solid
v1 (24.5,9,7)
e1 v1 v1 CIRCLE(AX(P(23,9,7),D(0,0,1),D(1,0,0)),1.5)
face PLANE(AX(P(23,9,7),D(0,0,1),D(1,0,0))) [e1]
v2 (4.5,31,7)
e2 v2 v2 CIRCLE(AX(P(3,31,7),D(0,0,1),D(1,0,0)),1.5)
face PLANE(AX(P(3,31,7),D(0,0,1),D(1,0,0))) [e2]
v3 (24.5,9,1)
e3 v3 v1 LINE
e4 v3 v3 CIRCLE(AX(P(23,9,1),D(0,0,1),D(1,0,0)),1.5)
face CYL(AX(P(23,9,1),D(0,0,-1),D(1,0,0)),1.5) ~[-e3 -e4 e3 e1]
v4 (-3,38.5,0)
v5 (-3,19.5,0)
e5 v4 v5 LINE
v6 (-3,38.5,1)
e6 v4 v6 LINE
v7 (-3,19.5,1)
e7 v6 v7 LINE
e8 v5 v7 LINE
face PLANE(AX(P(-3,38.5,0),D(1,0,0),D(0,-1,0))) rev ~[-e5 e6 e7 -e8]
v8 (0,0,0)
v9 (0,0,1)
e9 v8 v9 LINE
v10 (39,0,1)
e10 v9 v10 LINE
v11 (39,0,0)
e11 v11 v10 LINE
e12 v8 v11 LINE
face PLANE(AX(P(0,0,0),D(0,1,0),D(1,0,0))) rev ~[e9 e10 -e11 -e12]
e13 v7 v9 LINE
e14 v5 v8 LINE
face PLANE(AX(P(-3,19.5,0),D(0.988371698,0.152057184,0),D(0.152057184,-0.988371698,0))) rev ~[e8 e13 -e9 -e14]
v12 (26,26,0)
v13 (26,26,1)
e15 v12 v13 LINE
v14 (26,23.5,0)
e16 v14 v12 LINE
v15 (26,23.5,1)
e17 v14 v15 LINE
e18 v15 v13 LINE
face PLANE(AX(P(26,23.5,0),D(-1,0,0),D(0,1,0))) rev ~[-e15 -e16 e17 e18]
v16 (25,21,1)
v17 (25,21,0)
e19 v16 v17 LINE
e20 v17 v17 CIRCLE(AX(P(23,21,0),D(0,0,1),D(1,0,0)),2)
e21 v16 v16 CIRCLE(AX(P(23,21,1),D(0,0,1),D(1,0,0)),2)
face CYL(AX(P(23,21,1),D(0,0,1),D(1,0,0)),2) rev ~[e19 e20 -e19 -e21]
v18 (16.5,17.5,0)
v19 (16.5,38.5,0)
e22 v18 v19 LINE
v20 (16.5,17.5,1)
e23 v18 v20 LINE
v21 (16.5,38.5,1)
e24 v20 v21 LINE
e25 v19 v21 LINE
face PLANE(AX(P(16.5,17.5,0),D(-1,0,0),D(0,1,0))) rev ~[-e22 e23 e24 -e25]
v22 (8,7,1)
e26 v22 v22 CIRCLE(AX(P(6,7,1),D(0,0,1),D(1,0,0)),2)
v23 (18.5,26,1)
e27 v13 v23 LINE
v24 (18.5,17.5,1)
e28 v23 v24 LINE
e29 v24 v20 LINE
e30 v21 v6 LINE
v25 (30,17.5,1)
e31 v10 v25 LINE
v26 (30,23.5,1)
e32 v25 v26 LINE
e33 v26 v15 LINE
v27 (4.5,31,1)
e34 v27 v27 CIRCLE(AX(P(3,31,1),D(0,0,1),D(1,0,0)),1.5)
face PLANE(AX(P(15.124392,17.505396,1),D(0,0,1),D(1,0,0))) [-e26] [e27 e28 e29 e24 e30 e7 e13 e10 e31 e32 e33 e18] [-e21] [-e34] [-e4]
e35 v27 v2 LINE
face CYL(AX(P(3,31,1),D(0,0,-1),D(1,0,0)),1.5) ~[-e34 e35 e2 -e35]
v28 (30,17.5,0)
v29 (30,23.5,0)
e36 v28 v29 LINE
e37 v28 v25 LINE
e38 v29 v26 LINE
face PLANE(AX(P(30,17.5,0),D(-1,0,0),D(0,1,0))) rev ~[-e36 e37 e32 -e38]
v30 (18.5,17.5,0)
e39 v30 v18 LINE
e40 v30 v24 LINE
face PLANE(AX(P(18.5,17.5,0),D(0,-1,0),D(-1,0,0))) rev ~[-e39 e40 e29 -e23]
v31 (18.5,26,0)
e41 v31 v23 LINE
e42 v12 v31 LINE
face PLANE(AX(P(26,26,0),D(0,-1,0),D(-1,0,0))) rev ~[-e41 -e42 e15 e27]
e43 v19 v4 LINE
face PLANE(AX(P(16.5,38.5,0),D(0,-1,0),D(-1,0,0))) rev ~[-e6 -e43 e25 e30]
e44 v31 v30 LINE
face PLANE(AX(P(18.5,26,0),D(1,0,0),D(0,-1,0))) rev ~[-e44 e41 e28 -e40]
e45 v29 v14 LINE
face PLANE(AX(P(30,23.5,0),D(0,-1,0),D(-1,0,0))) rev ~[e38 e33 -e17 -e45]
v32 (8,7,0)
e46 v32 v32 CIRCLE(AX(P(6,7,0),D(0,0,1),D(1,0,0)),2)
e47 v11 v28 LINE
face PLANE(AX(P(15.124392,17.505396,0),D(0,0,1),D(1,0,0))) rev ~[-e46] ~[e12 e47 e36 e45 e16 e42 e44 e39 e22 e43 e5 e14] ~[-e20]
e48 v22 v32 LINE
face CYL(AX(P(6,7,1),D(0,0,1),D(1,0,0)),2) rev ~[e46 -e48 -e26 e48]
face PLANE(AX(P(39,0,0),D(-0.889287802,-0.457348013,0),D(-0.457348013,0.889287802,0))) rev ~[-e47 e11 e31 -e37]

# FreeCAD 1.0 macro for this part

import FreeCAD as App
import Part
import Sketcher


def add_polygon(sketch, points):
    """Adds a closed chain of lines whose ends are joined by coincident constraints."""
    first, n = sketch.GeometryCount, len(points)
    for a, b in zip(points, points[1:] + points[:1]):
        sketch.addGeometry(Part.LineSegment(App.Vector(*a, 0), App.Vector(*b, 0)), False)
    for i in range(n):
        sketch.addConstraint(Sketcher.Constraint("Coincident", first + i, 2, first + (i + 1) % n, 1))

doc = App.newDocument("Part")
body = doc.addObject("PartDesign::Body", "Body")

# Sketch on XY plane
sketch1 = body.newObject("Sketcher::SketchObject", "Sketch")
sketch1.AttachmentSupport = (doc.getObject("XY_Plane"), [""])
sketch1.MapMode = "FlatFace"
add_polygon(sketch1, [(0, 0), (39, 0), (30, 17.5), (30, 23.5), (26, 23.5), (26, 26), (18.5, 26), (18.5, 17.5), (16.5, 17.5), (16.5, 38.5), (-3, 38.5), (-3, 19.5)])  # lines 0-11
sketch1.addConstraint(Sketcher.Constraint("Horizontal", 0))
sketch1.addConstraint(Sketcher.Constraint("Vertical", 2))
sketch1.addConstraint(Sketcher.Constraint("Horizontal", 3))
sketch1.addConstraint(Sketcher.Constraint("Vertical", 4))
sketch1.addConstraint(Sketcher.Constraint("Horizontal", 5))
sketch1.addConstraint(Sketcher.Constraint("Vertical", 6))
sketch1.addConstraint(Sketcher.Constraint("Horizontal", 7))
sketch1.addConstraint(Sketcher.Constraint("Vertical", 8))
sketch1.addConstraint(Sketcher.Constraint("Horizontal", 9))
sketch1.addConstraint(Sketcher.Constraint("Vertical", 10))
sketch1.addConstraint(Sketcher.Constraint("Coincident", 11, 2, -1, 1))
sketch1.addConstraint(Sketcher.Constraint("Horizontal", 1, 2, 6, 2))
sketch1.addConstraint(Sketcher.Constraint("DistanceX", 0, 1, 0, 2, 39.0))
sketch1.addConstraint(Sketcher.Constraint("DistanceX", 3, 2, 3, 1, 4.0))
sketch1.addConstraint(Sketcher.Constraint("DistanceX", 7, 2, 7, 1, 2.0))
sketch1.addConstraint(Sketcher.Constraint("DistanceY", 2, 1, 2, 2, 6.0))
sketch1.addConstraint(Sketcher.Constraint("DistanceY", 8, 1, 8, 2, 21.0))
sketch1.addConstraint(Sketcher.Constraint("DistanceY", 10, 2, 10, 1, 19.0))
sketch1.addConstraint(Sketcher.Constraint("DistanceX", 5, 2, 5, 1, 7.5))
sketch1.addConstraint(Sketcher.Constraint("DistanceX", 9, 2, 9, 1, 19.5))
sketch1.addConstraint(Sketcher.Constraint("DistanceY", 4, 1, 4, 2, 2.5))
sketch1.addConstraint(Sketcher.Constraint("DistanceX", -1, 1, 1, 2, 30.0))
sketch1.addConstraint(Sketcher.Constraint("DistanceY", -1, 1, 4, 2, 26.0))
pad1 = body.newObject("PartDesign::Pad", "Pad")
pad1.Profile = sketch1
pad1.Length = 1

# Sketch on XY plane
sketch2 = body.newObject("Sketcher::SketchObject", "Sketch001")
sketch2.AttachmentSupport = (doc.getObject("XY_Plane"), [""])
sketch2.MapMode = "FlatFace"
sketch2.AttachmentOffset = App.Placement(App.Vector(0, 0, 1), App.Rotation())
sketch2.addGeometry(Part.Circle(App.Vector(3, 31, 0), App.Vector(0, 0, 1), 1.5), False)
sketch2.addGeometry(Part.Circle(App.Vector(23, 9, 0), App.Vector(0, 0, 1), 1.5), False)
sketch2.addConstraint(Sketcher.Constraint("Equal", 0, 1))
sketch2.addConstraint(Sketcher.Constraint("Diameter", 0, 3.0))
sketch2.addConstraint(Sketcher.Constraint("DistanceX", -1, 1, 0, 3, 3.0))
sketch2.addConstraint(Sketcher.Constraint("DistanceY", -1, 1, 0, 3, 31.0))
sketch2.addConstraint(Sketcher.Constraint("DistanceX", -1, 1, 1, 3, 23.0))
sketch2.addConstraint(Sketcher.Constraint("DistanceY", -1, 1, 1, 3, 9.0))
pad2 = body.newObject("PartDesign::Pad", "Pad001")
pad2.Profile = sketch2
pad2.Length = 6

# Sketch on XY plane
sketch3 = body.newObject("Sketcher::SketchObject", "Sketch002")
sketch3.AttachmentSupport = (doc.getObject("XY_Plane"), [""])
sketch3.MapMode = "FlatFace"
sketch3.AttachmentOffset = App.Placement(App.Vector(0, 0, 1), App.Rotation())
sketch3.addGeometry(Part.Circle(App.Vector(6, 7, 0), App.Vector(0, 0, 1), 2), False)
sketch3.addGeometry(Part.Circle(App.Vector(23, 21, 0), App.Vector(0, 0, 1), 2), False)
sketch3.addConstraint(Sketcher.Constraint("Equal", 0, 1))
sketch3.addConstraint(Sketcher.Constraint("Diameter", 0, 4.0))
sketch3.addConstraint(Sketcher.Constraint("DistanceX", -1, 1, 0, 3, 6.0))
sketch3.addConstraint(Sketcher.Constraint("DistanceY", -1, 1, 0, 3, 7.0))
sketch3.addConstraint(Sketcher.Constraint("DistanceX", -1, 1, 1, 3, 23.0))
sketch3.addConstraint(Sketcher.Constraint("DistanceY", -1, 1, 1, 3, 21.0))
pocket1 = body.newObject("PartDesign::Pocket", "Pocket")
pocket1.Profile = sketch3
pocket1.Type = "ThroughAll"

doc.recompute()
